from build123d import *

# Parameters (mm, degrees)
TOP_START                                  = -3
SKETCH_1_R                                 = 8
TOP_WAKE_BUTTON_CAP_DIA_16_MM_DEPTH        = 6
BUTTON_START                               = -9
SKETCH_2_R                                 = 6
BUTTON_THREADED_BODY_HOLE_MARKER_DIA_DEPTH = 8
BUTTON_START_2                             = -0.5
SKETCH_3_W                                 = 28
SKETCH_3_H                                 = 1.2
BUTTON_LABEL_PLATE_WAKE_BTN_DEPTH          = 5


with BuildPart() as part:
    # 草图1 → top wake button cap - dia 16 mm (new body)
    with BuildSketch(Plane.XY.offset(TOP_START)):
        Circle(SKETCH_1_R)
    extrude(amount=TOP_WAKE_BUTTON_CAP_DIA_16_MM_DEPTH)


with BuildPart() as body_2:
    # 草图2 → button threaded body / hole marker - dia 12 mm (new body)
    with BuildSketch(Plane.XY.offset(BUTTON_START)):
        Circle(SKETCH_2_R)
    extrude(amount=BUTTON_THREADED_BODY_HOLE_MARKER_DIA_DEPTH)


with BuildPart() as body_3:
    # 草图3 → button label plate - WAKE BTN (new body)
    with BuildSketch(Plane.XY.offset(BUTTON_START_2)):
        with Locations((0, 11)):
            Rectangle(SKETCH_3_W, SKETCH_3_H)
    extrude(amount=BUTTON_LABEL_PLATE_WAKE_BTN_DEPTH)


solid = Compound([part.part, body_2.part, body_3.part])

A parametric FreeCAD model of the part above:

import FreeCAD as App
import Part
import Sketcher
from FreeCAD import Vector

doc = App.newDocument("Part")
params = doc.addObject("Spreadsheet::Sheet", "Params")
for row, (alias, value) in enumerate([
    ("sketch1_diameter", "16 mm"),
    ("pad1_length", "6 mm"),
    ("sketch2_diameter", "12 mm"),
    ("pad2_length", "8 mm"),
    ("sketch3_width", "28 mm"),
    ("sketch3_height", "1.2 mm"),
    ("pad3_length", "5 mm"),
], start=1):
    params.set(f"A{row}", alias)
    params.set(f"B{row}", "=" + value)
    params.setAlias(f"B{row}", alias)

body = doc.addObject("PartDesign::Body", "Body")

# Sketch on XY plane
sketch1 = doc.addObject("Sketcher::SketchObject", "Sketch")
body.addObject(sketch1)
sketch1.AttachmentSupport = (doc.XY_Plane, [""])
sketch1.MapMode = "FlatFace"
sketch1.AttachmentOffset = App.Placement(Vector(0, 0, -3), App.Rotation())
sketch1.addGeometry(Part.Circle(Vector(0, 0, 0), Vector(0, 0, 1), 8), False)
sketch1.addConstraint(Sketcher.Constraint("Coincident", 0, 3, -1, 1))
sketch1.addConstraint(Sketcher.Constraint("Diameter", 0, 16.0))
sketch1.setExpression("Constraints[1]", "Params.sketch1_diameter")
pad1 = doc.addObject("PartDesign::Pad", "Pad")
body.addObject(pad1)
pad1.Profile = sketch1
pad1.setExpression("Length", "Params.pad1_length")
body2 = doc.addObject("PartDesign::Body", "Body001")

# Sketch on XY plane
sketch2 = doc.addObject("Sketcher::SketchObject", "Sketch001")
body2.addObject(sketch2)
sketch2.AttachmentSupport = (doc.getObject("XY_Plane001"), [""])
sketch2.MapMode = "FlatFace"
sketch2.AttachmentOffset = App.Placement(Vector(0, 0, -9), App.Rotation())
sketch2.addGeometry(Part.Circle(Vector(0, 0, 0), Vector(0, 0, 1), 6), False)
sketch2.addConstraint(Sketcher.Constraint("Coincident", 0, 3, -1, 1))
sketch2.addConstraint(Sketcher.Constraint("Diameter", 0, 12.0))
sketch2.setExpression("Constraints[1]", "Params.sketch2_diameter")
pad2 = doc.addObject("PartDesign::Pad", "Pad001")
body2.addObject(pad2)
pad2.Profile = sketch2
pad2.setExpression("Length", "Params.pad2_length")
body3 = doc.addObject("PartDesign::Body", "Body002")

# Sketch on XY plane
sketch3 = doc.addObject("Sketcher::SketchObject", "Sketch002")
body3.addObject(sketch3)
sketch3.AttachmentSupport = (doc.getObject("XY_Plane002"), [""])
sketch3.MapMode = "FlatFace"
sketch3.AttachmentOffset = App.Placement(Vector(0, 0, -0.5), App.Rotation())
sketch3.addGeometry(Part.LineSegment(Vector(-14, 11.6, 0), Vector(-14, 10.4, 0)), False)
sketch3.addGeometry(Part.LineSegment(Vector(-14, 10.4, 0), Vector(14, 10.4, 0)), False)
sketch3.addGeometry(Part.LineSegment(Vector(14, 10.4, 0), Vector(14, 11.6, 0)), False)
sketch3.addGeometry(Part.LineSegment(Vector(14, 11.6, 0), Vector(-14, 11.6, 0)), False)
sketch3.addConstraint(Sketcher.Constraint("Coincident", 0, 2, 1, 1))
sketch3.addConstraint(Sketcher.Constraint("Coincident", 1, 2, 2, 1))
sketch3.addConstraint(Sketcher.Constraint("Coincident", 2, 2, 3, 1))
sketch3.addConstraint(Sketcher.Constraint("Coincident", 3, 2, 0, 1))
sketch3.addConstraint(Sketcher.Constraint("Vertical", 0))
sketch3.addConstraint(Sketcher.Constraint("Horizontal", 1))
sketch3.addConstraint(Sketcher.Constraint("Vertical", 2))
sketch3.addConstraint(Sketcher.Constraint("Horizontal", 3))
sketch3.addConstraint(Sketcher.Constraint("DistanceX", 1, 1, 1, 2, 28.0))
sketch3.addConstraint(Sketcher.Constraint("DistanceY", 0, 2, 0, 1, 1.2))
sketch3.addConstraint(Sketcher.Constraint("DistanceX", 0, 2, -1, 1, 14.0))
sketch3.addConstraint(Sketcher.Constraint("DistanceY", -1, 1, 0, 2, 10.4))
sketch3.setExpression("Constraints[8]", "Params.sketch3_width")
sketch3.setExpression("Constraints[9]", "Params.sketch3_height")
pad3 = doc.addObject("PartDesign::Pad", "Pad002")
body3.addObject(pad3)
pad3.Profile = sketch3
pad3.setExpression("Length", "Params.pad3_length")

doc.recompute()
